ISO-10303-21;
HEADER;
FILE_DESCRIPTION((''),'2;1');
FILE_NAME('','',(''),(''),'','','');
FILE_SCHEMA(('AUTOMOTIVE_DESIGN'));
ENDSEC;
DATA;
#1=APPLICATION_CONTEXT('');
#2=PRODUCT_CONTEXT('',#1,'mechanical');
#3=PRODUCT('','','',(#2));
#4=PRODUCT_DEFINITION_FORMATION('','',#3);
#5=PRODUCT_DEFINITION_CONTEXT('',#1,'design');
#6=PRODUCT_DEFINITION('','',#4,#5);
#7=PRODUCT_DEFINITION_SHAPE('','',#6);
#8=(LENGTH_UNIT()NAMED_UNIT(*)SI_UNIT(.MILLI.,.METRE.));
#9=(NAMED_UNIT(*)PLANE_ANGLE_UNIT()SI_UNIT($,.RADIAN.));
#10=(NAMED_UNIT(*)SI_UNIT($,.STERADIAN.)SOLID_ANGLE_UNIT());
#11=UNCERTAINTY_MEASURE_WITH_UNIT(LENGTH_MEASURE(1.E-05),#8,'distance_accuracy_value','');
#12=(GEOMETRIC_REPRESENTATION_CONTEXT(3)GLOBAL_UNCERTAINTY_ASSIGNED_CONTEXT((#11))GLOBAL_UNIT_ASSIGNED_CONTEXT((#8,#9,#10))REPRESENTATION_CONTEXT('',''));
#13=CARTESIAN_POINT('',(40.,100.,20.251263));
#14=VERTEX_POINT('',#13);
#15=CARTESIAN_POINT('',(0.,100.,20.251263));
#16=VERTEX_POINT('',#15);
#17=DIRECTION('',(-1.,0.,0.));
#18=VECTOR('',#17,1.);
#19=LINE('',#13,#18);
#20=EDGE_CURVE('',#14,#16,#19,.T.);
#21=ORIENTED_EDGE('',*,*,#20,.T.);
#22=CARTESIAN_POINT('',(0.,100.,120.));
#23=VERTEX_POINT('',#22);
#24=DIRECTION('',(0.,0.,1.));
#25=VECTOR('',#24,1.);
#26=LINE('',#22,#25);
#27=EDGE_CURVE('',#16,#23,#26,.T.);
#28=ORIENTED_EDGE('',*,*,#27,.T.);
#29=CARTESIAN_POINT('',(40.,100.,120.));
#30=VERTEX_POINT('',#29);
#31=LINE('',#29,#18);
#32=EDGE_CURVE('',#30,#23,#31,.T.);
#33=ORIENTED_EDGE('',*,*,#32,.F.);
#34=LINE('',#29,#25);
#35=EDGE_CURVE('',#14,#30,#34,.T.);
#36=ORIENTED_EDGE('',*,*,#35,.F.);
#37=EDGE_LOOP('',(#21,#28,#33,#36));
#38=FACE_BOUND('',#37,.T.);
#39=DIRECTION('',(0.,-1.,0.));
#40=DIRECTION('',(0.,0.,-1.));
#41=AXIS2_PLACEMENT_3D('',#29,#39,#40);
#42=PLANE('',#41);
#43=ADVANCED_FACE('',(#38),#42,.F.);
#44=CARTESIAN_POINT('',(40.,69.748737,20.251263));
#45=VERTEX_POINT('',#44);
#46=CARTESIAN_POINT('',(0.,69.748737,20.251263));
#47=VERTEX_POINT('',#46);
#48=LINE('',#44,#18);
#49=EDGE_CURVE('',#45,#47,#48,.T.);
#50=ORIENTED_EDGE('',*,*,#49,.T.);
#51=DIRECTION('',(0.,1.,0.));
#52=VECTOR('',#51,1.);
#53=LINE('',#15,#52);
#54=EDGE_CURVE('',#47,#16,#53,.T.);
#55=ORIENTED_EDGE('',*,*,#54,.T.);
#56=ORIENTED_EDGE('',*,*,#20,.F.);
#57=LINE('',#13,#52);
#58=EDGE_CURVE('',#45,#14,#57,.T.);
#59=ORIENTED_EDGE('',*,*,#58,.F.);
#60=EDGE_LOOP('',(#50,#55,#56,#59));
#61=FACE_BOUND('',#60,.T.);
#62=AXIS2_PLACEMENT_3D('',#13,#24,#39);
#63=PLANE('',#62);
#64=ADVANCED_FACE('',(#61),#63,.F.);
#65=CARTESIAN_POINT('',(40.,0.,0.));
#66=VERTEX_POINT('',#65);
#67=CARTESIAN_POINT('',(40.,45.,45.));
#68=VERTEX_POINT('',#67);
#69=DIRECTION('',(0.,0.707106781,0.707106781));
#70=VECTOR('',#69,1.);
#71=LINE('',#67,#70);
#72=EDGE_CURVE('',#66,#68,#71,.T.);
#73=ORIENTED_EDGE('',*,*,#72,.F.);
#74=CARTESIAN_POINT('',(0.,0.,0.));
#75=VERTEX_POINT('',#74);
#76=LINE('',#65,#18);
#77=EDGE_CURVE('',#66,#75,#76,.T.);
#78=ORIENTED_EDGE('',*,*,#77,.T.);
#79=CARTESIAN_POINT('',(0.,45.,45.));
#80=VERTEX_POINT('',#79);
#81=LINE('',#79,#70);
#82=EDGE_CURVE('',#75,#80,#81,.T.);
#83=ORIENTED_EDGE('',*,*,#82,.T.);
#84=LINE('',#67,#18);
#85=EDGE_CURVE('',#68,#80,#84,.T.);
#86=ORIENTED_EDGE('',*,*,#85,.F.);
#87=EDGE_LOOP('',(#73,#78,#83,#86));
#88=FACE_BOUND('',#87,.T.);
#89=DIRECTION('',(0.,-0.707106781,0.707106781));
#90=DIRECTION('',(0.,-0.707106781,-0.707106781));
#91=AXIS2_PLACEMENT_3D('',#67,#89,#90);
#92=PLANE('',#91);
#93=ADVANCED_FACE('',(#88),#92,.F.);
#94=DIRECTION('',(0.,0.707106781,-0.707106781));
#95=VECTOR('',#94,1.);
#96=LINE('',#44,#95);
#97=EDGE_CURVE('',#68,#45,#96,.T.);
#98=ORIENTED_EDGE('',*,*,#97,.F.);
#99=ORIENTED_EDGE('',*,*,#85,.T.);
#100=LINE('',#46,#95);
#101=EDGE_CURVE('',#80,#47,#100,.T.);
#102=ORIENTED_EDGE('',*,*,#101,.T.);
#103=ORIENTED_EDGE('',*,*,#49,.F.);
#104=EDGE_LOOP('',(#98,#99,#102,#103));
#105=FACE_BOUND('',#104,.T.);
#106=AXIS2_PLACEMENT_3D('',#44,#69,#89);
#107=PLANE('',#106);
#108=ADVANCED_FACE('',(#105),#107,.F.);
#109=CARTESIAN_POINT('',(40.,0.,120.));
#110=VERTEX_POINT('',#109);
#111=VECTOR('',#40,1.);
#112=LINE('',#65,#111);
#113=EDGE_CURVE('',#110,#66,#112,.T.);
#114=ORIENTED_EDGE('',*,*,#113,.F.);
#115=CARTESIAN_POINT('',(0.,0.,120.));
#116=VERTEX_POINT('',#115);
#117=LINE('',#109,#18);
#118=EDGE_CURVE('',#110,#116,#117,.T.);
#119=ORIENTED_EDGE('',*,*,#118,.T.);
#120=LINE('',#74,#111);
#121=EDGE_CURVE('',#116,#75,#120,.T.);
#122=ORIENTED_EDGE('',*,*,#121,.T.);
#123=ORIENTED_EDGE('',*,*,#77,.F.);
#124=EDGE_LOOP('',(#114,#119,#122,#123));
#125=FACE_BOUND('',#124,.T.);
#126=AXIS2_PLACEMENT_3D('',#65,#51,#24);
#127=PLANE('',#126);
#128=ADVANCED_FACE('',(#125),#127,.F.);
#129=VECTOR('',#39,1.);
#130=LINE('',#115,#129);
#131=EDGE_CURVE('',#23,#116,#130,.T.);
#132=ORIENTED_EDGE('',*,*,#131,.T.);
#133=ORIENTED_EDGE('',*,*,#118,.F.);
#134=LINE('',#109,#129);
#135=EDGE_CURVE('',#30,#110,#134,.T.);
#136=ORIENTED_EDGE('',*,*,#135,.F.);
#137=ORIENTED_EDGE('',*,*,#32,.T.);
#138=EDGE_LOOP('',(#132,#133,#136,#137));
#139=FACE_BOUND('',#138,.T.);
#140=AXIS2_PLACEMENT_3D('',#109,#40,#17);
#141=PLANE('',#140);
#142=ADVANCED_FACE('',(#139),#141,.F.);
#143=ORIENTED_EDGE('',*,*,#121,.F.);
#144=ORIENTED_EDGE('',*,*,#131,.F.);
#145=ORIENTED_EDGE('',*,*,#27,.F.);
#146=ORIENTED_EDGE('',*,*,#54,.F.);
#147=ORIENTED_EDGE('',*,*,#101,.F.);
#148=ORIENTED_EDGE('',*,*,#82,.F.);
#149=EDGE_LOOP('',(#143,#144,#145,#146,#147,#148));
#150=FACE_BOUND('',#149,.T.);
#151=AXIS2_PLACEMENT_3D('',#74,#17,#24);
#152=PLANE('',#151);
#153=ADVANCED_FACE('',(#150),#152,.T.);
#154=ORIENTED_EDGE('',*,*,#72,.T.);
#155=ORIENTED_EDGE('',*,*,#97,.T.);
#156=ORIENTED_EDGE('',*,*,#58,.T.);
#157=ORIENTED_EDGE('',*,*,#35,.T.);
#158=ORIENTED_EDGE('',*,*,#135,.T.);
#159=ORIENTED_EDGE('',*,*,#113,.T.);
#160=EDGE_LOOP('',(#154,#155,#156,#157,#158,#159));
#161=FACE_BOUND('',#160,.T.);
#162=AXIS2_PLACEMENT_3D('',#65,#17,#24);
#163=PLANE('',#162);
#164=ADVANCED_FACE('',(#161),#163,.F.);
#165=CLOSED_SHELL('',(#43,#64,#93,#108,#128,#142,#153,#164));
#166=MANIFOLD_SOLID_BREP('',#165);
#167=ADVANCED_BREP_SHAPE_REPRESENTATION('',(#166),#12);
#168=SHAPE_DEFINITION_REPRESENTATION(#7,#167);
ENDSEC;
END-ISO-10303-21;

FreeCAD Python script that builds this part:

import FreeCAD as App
import Part
import Sketcher

V = App.Vector
Q = App.Units.Quantity


def add_polygon(sketch, points):
    """Adds a closed chain of lines whose ends are joined by coincident constraints."""
    first, n = sketch.GeometryCount, len(points)
    for a, b in zip(points, points[1:] + points[:1]):
        sketch.addGeometry(Part.LineSegment(App.Vector(*a, 0), App.Vector(*b, 0)), False)
    for i in range(n):
        sketch.addConstraint(Sketcher.Constraint("Coincident", first + i, 2, first + (i + 1) % n, 1))

doc = App.newDocument("Part")
body = doc.addObject("PartDesign::Body", "Body")

# Sketch on YZ plane
sketch1 = body.newObject("Sketcher::SketchObject", "Sketch")
sketch1.AttachmentSupport = (doc.getObject("YZ_Plane"), [""])
sketch1.MapMode = "FlatFace"
add_polygon(sketch1, [(0, 120), (0, 0), (45, 45), (69.748737, 20.251263), (100, 20.251263), (100, 120)])  # lines 0-5
sketch1.addConstraint(Sketcher.Constraint("Vertical", 0))
sketch1.addConstraint(Sketcher.Constraint("Horizontal", 3))
sketch1.addConstraint(Sketcher.Constraint("Vertical", 4))
sketch1.addConstraint(Sketcher.Constraint("Horizontal", 5))
sketch1.addConstraint(Sketcher.Constraint("Coincident", 0, 2, -1, 1))
sketch1.addConstraint(Sketcher.Constraint("Perpendicular", 1, 2))
sketch1.addConstraint(Sketcher.Constraint("DistanceX", 5, 2, 5, 1, 100.0))
sketch1.addConstraint(Sketcher.Constraint("DistanceY", 0, 2, 0, 1, 120.0))
sketch1.addConstraint(Sketcher.Constraint("Angle", 1, Q("45 deg")))
sketch1.addConstraint(Sketcher.Constraint("Distance", 2, 35.0))
sketch1.addConstraint(Sketcher.Constraint("DistanceX", -1, 1, 1, 2, 45.0))
pad1 = body.newObject("PartDesign::Pad", "Pad")
pad1.Profile = sketch1
pad1.Length = 40

doc.recompute()
